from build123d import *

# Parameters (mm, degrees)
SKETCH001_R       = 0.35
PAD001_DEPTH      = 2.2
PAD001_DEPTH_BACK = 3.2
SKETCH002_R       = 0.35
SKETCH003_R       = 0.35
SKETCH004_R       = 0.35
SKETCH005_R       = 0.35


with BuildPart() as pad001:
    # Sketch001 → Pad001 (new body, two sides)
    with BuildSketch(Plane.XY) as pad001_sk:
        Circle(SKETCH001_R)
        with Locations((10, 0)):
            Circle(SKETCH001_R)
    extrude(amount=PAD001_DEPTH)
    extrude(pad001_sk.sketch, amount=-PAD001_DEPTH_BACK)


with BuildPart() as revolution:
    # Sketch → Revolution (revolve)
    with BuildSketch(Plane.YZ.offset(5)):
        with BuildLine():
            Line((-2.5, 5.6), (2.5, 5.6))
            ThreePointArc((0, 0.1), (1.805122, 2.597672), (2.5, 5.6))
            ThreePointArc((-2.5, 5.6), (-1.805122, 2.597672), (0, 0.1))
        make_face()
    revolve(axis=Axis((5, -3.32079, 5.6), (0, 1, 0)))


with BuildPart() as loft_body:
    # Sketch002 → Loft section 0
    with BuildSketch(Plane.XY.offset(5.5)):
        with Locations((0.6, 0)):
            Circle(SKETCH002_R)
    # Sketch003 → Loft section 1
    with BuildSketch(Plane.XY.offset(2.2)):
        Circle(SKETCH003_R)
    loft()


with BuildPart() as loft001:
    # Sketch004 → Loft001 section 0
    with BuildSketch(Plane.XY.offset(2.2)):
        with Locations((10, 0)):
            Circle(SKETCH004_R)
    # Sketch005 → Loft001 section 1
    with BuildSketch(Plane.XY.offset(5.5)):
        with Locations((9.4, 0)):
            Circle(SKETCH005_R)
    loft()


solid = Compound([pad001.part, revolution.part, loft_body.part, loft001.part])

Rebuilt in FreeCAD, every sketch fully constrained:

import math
import FreeCAD as App
import Part
import Sketcher
Q = App.Units.Quantity

doc = App.newDocument("Part")
body = doc.addObject("PartDesign::Body", "Body")
body.AllowCompound = True

# Sketch on XY plane
sketch1 = body.newObject("Sketcher::SketchObject", "Sketch")
sketch1.AttachmentSupport = (doc.getObject("XY_Plane"), [""])
sketch1.MapMode = "FlatFace"
sketch1.addGeometry(Part.Circle(App.Vector(0, 0, 0), App.Vector(0, 0, 1), 0.35), False)
sketch1.addGeometry(Part.Circle(App.Vector(10, 0, 0), App.Vector(0, 0, 1), 0.35), False)
sketch1.addConstraint(Sketcher.Constraint("Coincident", 0, 3, -1, 1))
sketch1.addConstraint(Sketcher.Constraint("Equal", 0, 1))
sketch1.addConstraint(Sketcher.Constraint("PointOnObject", 1, 3, -1))
sketch1.addConstraint(Sketcher.Constraint("Diameter", 0, Q("0.7 mm")))
sketch1.addConstraint(Sketcher.Constraint("DistanceX", -1, 1, 1, 3, Q("10 mm")))
pad1 = body.newObject("PartDesign::Pad", "Pad")
pad1.Profile = sketch1
pad1.Type = "TwoLengths"
pad1.Length = 2.2
pad1.Length2 = 3.2
body2 = doc.addObject("PartDesign::Body", "Body001")

# Sketch on YZ plane
sketch2 = body2.newObject("Sketcher::SketchObject", "Sketch001")
sketch2.AttachmentSupport = (doc.getObject("YZ_Plane001"), [""])
sketch2.MapMode = "FlatFace"
sketch2.AttachmentOffset = App.Placement(App.Vector(0, 0, 5), App.Rotation())
sketch2.addGeometry(Part.LineSegment(App.Vector(2, 6, 0), App.Vector(-2, 6, 0)), False)
sketch2.addGeometry(Part.ArcOfCircle(Part.Circle(App.Vector(5, 6, 0), App.Vector(0, 0, 1), 8), math.radians(-178), math.radians(-133)), False)
sketch2.addGeometry(Part.ArcOfCircle(Part.Circle(App.Vector(-5, 6, 0), App.Vector(0, 0, 1), 8), math.radians(-47), math.radians(-2)), False)
sketch2.addGeometry(Part.LineSegment(App.Vector(-5, 6, 0), App.Vector(5, 6, 0)), True)  # axis
sketch2.addConstraint(Sketcher.Constraint("Coincident", 0, 2, 1, 1))
sketch2.addConstraint(Sketcher.Constraint("Coincident", 1, 2, 2, 1))
sketch2.addConstraint(Sketcher.Constraint("Coincident", 2, 2, 0, 1))
sketch2.addConstraint(Sketcher.Constraint("Horizontal", 0))
sketch2.addConstraint(Sketcher.Constraint("Horizontal", 3))
sketch2.addConstraint(Sketcher.Constraint("Equal", 1, 2))
sketch2.addConstraint(Sketcher.Constraint("Symmetric", 1, 3, 2, 3, -2))
sketch2.addConstraint(Sketcher.Constraint("Horizontal", 2, 2, 3, 1))
sketch2.addConstraint(Sketcher.Constraint("Vertical", 2, 3, 3, 1))
sketch2.addConstraint(Sketcher.Constraint("Vertical", 1, 3, 3, 2))
sketch2.addConstraint(Sketcher.Constraint("DistanceX", 0, 2, 0, 1, Q("5 mm")))
sketch2.addConstraint(Sketcher.Constraint("DistanceY", -1, 1, 0, 2, Q("5.6 mm")))
sketch2.addConstraint(Sketcher.Constraint("DistanceY", -1, 1, 1, 2, Q("0.1 mm")))
sketch2.addConstraint(Sketcher.Constraint("Radius", 1, Q("7.787114 mm")))
revolution = body2.newObject("PartDesign::Revolution", "Revolution")
revolution.Profile = sketch2
revolution.ReferenceAxis = (sketch2, ["Axis0"])
revolution.Angle = 360
body3 = doc.addObject("PartDesign::Body", "Body002")

# Sketch on XY plane
sketch3 = body3.newObject("Sketcher::SketchObject", "Sketch002")
sketch3.AttachmentSupport = (doc.getObject("XY_Plane002"), [""])
sketch3.MapMode = "FlatFace"
sketch3.AttachmentOffset = App.Placement(App.Vector(0, 0, 5.5), App.Rotation())
sketch3.addGeometry(Part.Circle(App.Vector(0.6, 0, 0), App.Vector(0, 0, 1), 0.35), False)
sketch3.addConstraint(Sketcher.Constraint("PointOnObject", 0, 3, -1))
sketch3.addConstraint(Sketcher.Constraint("Diameter", 0, Q("0.7 mm")))
sketch3.addConstraint(Sketcher.Constraint("DistanceX", -1, 1, 0, 3, Q("0.6 mm")))

# Sketch on XY plane
sketch4 = body3.newObject("Sketcher::SketchObject", "Sketch003")
sketch4.AttachmentSupport = (doc.getObject("XY_Plane002"), [""])
sketch4.MapMode = "FlatFace"
sketch4.AttachmentOffset = App.Placement(App.Vector(0, 0, 2.2), App.Rotation())
sketch4.addGeometry(Part.Circle(App.Vector(0, 0, 0), App.Vector(0, 0, 1), 0.35), False)
sketch4.addConstraint(Sketcher.Constraint("Coincident", 0, 3, -1, 1))
sketch4.addConstraint(Sketcher.Constraint("Diameter", 0, Q("0.7 mm")))

additiveloft = body3.newObject("PartDesign::AdditiveLoft", "AdditiveLoft")
additiveloft.Profile = sketch3
additiveloft.Sections = [sketch4]
body4 = doc.addObject("PartDesign::Body", "Body003")

# Sketch on XY plane
sketch5 = body4.newObject("Sketcher::SketchObject", "Sketch004")
sketch5.AttachmentSupport = (doc.getObject("XY_Plane003"), [""])
sketch5.MapMode = "FlatFace"
sketch5.AttachmentOffset = App.Placement(App.Vector(0, 0, 2.2), App.Rotation())
sketch5.addGeometry(Part.Circle(App.Vector(10, 0, 0), App.Vector(0, 0, 1), 0.35), False)
sketch5.addConstraint(Sketcher.Constraint("PointOnObject", 0, 3, -1))
sketch5.addConstraint(Sketcher.Constraint("Diameter", 0, Q("0.7 mm")))
sketch5.addConstraint(Sketcher.Constraint("DistanceX", -1, 1, 0, 3, Q("10 mm")))

# Sketch on XY plane
sketch6 = body4.newObject("Sketcher::SketchObject", "Sketch005")
sketch6.AttachmentSupport = (doc.getObject("XY_Plane003"), [""])
sketch6.MapMode = "FlatFace"
sketch6.AttachmentOffset = App.Placement(App.Vector(0, 0, 5.5), App.Rotation())
sketch6.addGeometry(Part.Circle(App.Vector(9.4, 0, 0), App.Vector(0, 0, 1), 0.35), False)
sketch6.addConstraint(Sketcher.Constraint("PointOnObject", 0, 3, -1))
sketch6.addConstraint(Sketcher.Constraint("Diameter", 0, Q("0.7 mm")))
sketch6.addConstraint(Sketcher.Constraint("DistanceX", -1, 1, 0, 3, Q("9.4 mm")))

additiveloft2 = body4.newObject("PartDesign::AdditiveLoft", "AdditiveLoft001")
additiveloft2.Profile = sketch5
additiveloft2.Sections = [sketch6]

doc.recompute()
